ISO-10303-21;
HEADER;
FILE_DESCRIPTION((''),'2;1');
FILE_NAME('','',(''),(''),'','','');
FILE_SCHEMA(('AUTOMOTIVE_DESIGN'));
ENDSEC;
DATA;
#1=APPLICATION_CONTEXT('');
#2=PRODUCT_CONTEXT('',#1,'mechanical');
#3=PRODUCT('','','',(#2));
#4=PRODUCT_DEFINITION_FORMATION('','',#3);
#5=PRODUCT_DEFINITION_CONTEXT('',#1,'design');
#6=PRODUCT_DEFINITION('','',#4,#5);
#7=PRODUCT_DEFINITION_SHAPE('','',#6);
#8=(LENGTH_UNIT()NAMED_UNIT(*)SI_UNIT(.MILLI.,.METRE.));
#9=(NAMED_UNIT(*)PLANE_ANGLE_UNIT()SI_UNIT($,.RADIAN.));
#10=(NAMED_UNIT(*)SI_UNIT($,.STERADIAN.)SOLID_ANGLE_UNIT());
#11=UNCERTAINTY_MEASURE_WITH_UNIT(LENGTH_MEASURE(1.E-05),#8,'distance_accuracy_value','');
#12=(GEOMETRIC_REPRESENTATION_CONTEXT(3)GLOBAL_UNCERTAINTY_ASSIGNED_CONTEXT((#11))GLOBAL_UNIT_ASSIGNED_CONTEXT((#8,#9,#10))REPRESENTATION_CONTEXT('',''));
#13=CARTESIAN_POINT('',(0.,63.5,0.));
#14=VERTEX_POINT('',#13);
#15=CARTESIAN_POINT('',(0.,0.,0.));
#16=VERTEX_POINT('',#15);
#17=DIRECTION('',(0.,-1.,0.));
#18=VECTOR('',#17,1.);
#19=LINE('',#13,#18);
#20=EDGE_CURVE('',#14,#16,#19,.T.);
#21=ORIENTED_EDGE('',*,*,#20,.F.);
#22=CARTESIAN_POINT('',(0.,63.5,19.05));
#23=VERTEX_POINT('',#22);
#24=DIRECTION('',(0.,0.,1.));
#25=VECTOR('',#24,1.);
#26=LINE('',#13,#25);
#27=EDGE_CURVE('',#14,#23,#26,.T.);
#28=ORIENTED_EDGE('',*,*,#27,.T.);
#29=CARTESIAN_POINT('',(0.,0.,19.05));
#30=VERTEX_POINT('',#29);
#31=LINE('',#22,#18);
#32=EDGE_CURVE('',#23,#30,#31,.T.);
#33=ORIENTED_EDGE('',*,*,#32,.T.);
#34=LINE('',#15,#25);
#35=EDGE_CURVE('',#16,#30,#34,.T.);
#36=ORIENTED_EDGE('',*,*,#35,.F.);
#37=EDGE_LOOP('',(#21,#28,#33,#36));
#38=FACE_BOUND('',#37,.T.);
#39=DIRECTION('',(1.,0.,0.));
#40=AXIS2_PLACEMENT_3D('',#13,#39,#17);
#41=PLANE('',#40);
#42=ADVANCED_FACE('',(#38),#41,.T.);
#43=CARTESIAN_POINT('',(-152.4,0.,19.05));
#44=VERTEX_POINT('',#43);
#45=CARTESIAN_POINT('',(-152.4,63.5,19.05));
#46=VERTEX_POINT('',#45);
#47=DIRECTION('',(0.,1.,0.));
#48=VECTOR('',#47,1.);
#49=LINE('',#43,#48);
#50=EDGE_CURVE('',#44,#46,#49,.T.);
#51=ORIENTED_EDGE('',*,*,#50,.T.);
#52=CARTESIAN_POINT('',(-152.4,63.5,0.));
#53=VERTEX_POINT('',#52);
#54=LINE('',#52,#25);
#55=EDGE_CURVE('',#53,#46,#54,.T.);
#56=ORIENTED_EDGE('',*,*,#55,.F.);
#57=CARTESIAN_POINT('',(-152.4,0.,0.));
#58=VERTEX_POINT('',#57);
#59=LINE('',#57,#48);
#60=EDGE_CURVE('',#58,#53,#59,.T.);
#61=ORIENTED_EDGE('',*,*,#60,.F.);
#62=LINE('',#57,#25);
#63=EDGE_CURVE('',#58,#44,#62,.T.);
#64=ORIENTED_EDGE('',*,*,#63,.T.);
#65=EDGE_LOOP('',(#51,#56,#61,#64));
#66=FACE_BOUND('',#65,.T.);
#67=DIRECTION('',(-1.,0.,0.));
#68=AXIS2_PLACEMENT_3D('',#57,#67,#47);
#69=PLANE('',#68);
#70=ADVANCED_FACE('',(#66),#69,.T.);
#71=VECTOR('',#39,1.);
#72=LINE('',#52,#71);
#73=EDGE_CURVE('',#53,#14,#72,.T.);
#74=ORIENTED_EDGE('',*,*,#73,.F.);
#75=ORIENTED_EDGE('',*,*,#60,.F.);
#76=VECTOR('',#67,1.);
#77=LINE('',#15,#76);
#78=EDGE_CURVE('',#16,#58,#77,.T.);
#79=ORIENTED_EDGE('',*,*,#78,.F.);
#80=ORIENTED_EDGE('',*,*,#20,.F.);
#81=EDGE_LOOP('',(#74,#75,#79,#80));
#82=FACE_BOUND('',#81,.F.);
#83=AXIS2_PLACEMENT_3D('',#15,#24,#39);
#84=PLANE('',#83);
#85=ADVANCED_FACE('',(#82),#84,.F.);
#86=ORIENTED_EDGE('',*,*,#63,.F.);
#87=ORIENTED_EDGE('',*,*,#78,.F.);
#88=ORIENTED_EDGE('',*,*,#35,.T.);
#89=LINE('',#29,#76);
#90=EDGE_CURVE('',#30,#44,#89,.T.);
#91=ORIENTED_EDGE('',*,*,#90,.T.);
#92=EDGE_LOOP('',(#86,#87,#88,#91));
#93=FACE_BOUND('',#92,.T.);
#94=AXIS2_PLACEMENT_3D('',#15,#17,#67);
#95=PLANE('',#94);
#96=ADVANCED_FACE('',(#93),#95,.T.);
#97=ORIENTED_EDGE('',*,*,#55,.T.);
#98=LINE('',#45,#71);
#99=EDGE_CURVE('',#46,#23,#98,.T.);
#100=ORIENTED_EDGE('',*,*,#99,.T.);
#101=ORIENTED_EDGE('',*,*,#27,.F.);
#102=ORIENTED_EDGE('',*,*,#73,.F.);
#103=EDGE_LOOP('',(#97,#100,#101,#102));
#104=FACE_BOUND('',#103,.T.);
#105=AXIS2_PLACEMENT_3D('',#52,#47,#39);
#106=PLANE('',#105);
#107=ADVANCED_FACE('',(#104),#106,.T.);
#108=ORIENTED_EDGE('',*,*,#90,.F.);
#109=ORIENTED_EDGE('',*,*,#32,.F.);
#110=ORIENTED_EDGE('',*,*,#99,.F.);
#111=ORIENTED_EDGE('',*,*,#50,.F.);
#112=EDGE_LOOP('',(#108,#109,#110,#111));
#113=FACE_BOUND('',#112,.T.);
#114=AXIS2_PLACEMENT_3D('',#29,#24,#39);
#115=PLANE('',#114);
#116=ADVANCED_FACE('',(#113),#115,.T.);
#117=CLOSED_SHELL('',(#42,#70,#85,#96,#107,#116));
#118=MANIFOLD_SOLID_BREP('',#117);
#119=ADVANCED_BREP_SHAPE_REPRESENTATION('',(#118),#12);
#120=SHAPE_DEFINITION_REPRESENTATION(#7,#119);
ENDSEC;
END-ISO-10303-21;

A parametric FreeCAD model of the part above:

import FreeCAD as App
import Part
import Sketcher

V = App.Vector
Q = App.Units.Quantity

doc = App.newDocument("Part")
params = doc.addObject("Spreadsheet::Sheet", "Params")
for row, (alias, value) in enumerate([
    ("sketch1_width", "6 in"),
    ("sketch1_height", "2.5 in"),
    ("pad1_length", "0.75 in"),
], start=1):
    params.set(f"A{row}", alias)
    params.set(f"B{row}", "=" + value)
    params.setAlias(f"B{row}", alias)

body = doc.addObject("PartDesign::Body", "Body")

sketch1 = doc.addObject("Sketcher::SketchObject", "Sketch")
body.addObject(sketch1)
sketch1.AttachmentSupport = (doc.XY_Plane, [""])
sketch1.MapMode = "FlatFace"
sketch1.addGeometry(Part.LineSegment(V(0, 63.5, 0), V(-152.4, 63.5, 0)), False)
sketch1.addGeometry(Part.LineSegment(V(-152.4, 63.5, 0), V(-152.4, 0, 0)), False)
sketch1.addGeometry(Part.LineSegment(V(-152.4, 0, 0), V(0, 0, 0)), False)
sketch1.addGeometry(Part.LineSegment(V(0, 0, 0), V(0, 63.5, 0)), False)
sketch1.addConstraint(Sketcher.Constraint("Coincident", 0, 2, 1, 1))
sketch1.addConstraint(Sketcher.Constraint("Coincident", 1, 2, 2, 1))
sketch1.addConstraint(Sketcher.Constraint("Coincident", 2, 2, 3, 1))
sketch1.addConstraint(Sketcher.Constraint("Coincident", 3, 2, 0, 1))
sketch1.addConstraint(Sketcher.Constraint("Horizontal", 0))
sketch1.addConstraint(Sketcher.Constraint("Vertical", 1))
sketch1.addConstraint(Sketcher.Constraint("Horizontal", 2))
sketch1.addConstraint(Sketcher.Constraint("Vertical", 3))
sketch1.addConstraint(Sketcher.Constraint("Coincident", 2, 2, -1, 1))
sketch1.addConstraint(Sketcher.Constraint("DistanceX", 0, 2, 0, 1, Q("6 in")))
sketch1.addConstraint(Sketcher.Constraint("DistanceY", 1, 2, 1, 1, Q("2.5 in")))
sketch1.setExpression("Constraints[9]", "Params.sketch1_width")
sketch1.setExpression("Constraints[10]", "Params.sketch1_height")
pad1 = doc.addObject("PartDesign::Pad", "Pad")
body.addObject(pad1)
pad1.Profile = sketch1
pad1.setExpression("Length", "Params.pad1_length")

doc.recompute()
